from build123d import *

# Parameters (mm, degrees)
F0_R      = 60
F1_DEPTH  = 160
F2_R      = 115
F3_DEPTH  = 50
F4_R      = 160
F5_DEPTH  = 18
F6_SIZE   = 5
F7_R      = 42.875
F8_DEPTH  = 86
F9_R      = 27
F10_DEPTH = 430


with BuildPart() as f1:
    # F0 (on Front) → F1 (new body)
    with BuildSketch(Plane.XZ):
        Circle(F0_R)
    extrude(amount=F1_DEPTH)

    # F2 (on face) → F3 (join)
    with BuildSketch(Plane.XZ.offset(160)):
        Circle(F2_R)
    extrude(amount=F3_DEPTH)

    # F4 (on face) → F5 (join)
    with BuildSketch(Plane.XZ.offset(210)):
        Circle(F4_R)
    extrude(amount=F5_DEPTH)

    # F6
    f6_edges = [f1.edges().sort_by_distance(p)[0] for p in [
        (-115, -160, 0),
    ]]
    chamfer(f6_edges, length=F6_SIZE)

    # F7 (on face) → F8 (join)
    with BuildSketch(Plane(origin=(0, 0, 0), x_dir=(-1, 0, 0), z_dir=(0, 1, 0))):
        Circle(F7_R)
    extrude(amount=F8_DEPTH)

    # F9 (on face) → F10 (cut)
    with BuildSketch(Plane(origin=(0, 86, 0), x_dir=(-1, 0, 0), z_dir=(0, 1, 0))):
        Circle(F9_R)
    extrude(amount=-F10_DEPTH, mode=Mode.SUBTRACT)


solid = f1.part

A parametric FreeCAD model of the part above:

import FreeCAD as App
import Part
import Sketcher

V = App.Vector
Q = App.Units.Quantity


def edges_at(feature, points):
    """Names of the edges that pass closest to the given points."""
    edges = feature.Shape.Edges
    near = lambda p: min(range(len(edges)), key=lambda i: edges[i].distToShape(Part.Vertex(*p))[0])
    return sorted({f"Edge{near(p) + 1}" for p in points})

doc = App.newDocument("Part")
body = doc.addObject("PartDesign::Body", "Body")

# Sketch on XZ plane
sketch1 = body.newObject("Sketcher::SketchObject", "Sketch")
sketch1.AttachmentSupport = (doc.getObject("XZ_Plane"), [""])
sketch1.MapMode = "FlatFace"
sketch1.addGeometry(Part.Circle(V(0, 0, 0), V(0, 0, 1), 60), False)
sketch1.addConstraint([
    Sketcher.Constraint("Coincident", 0, 3, -1, 1),
    Sketcher.Constraint("Diameter", 0, Q("120 mm")),
])
pad1 = body.newObject("PartDesign::Pad", "Pad")
pad1.Profile = sketch1
pad1.Length = 160

# Sketch on XZ plane
sketch2 = body.newObject("Sketcher::SketchObject", "Sketch001")
sketch2.AttachmentSupport = (doc.getObject("XZ_Plane"), [""])
sketch2.MapMode = "FlatFace"
sketch2.AttachmentOffset = App.Placement(V(0, 0, 160), App.Rotation())
sketch2.addGeometry(Part.Circle(V(0, 0, 0), V(0, 0, 1), 115), False)
sketch2.addConstraint([
    Sketcher.Constraint("Coincident", 0, 3, -1, 1),
    Sketcher.Constraint("Diameter", 0, Q("230 mm")),
])
pad2 = body.newObject("PartDesign::Pad", "Pad001")
pad2.Profile = sketch2
pad2.Length = 50

# Sketch on XZ plane
sketch3 = body.newObject("Sketcher::SketchObject", "Sketch002")
sketch3.AttachmentSupport = (doc.getObject("XZ_Plane"), [""])
sketch3.MapMode = "FlatFace"
sketch3.AttachmentOffset = App.Placement(V(0, 0, 210), App.Rotation())
sketch3.addGeometry(Part.Circle(V(0, 0, 0), V(0, 0, 1), 160), False)
sketch3.addConstraint([
    Sketcher.Constraint("Coincident", 0, 3, -1, 1),
    Sketcher.Constraint("Diameter", 0, Q("320 mm")),
])
pad3 = body.newObject("PartDesign::Pad", "Pad002")
pad3.Profile = sketch3
pad3.Length = 18
doc.recompute()

chamfer = body.newObject("PartDesign::Chamfer", "Chamfer")
chamfer.Base = (pad3, edges_at(pad3, [(-115, -160, 0)]))
chamfer.Size = 5

# Sketch on XZ plane
sketch4 = body.newObject("Sketcher::SketchObject", "Sketch003")
sketch4.AttachmentSupport = (doc.getObject("XZ_Plane"), [""])
sketch4.MapMode = "FlatFace"
sketch4.addGeometry(Part.Circle(V(0, 0, 0), V(0, 0, 1), 42.875), False)
sketch4.addConstraint([
    Sketcher.Constraint("Coincident", 0, 3, -1, 1),
    Sketcher.Constraint("Diameter", 0, Q("85.75 mm")),
])
pad4 = body.newObject("PartDesign::Pad", "Pad003")
pad4.Profile = sketch4
pad4.Length = 86
pad4.Reversed = True

# Sketch on XZ plane
sketch5 = body.newObject("Sketcher::SketchObject", "Sketch004")
sketch5.AttachmentSupport = (doc.getObject("XZ_Plane"), [""])
sketch5.MapMode = "FlatFace"
sketch5.AttachmentOffset = App.Placement(V(0, 0, -86), App.Rotation())
sketch5.addGeometry(Part.Circle(V(0, 0, 0), V(0, 0, 1), 27), False)
sketch5.addConstraint([
    Sketcher.Constraint("Coincident", 0, 3, -1, 1),
    Sketcher.Constraint("Diameter", 0, Q("54 mm")),
])
pocket1 = body.newObject("PartDesign::Pocket", "Pocket")
pocket1.Profile = sketch5
pocket1.Length = 430
pocket1.Reversed = True

doc.recompute()
